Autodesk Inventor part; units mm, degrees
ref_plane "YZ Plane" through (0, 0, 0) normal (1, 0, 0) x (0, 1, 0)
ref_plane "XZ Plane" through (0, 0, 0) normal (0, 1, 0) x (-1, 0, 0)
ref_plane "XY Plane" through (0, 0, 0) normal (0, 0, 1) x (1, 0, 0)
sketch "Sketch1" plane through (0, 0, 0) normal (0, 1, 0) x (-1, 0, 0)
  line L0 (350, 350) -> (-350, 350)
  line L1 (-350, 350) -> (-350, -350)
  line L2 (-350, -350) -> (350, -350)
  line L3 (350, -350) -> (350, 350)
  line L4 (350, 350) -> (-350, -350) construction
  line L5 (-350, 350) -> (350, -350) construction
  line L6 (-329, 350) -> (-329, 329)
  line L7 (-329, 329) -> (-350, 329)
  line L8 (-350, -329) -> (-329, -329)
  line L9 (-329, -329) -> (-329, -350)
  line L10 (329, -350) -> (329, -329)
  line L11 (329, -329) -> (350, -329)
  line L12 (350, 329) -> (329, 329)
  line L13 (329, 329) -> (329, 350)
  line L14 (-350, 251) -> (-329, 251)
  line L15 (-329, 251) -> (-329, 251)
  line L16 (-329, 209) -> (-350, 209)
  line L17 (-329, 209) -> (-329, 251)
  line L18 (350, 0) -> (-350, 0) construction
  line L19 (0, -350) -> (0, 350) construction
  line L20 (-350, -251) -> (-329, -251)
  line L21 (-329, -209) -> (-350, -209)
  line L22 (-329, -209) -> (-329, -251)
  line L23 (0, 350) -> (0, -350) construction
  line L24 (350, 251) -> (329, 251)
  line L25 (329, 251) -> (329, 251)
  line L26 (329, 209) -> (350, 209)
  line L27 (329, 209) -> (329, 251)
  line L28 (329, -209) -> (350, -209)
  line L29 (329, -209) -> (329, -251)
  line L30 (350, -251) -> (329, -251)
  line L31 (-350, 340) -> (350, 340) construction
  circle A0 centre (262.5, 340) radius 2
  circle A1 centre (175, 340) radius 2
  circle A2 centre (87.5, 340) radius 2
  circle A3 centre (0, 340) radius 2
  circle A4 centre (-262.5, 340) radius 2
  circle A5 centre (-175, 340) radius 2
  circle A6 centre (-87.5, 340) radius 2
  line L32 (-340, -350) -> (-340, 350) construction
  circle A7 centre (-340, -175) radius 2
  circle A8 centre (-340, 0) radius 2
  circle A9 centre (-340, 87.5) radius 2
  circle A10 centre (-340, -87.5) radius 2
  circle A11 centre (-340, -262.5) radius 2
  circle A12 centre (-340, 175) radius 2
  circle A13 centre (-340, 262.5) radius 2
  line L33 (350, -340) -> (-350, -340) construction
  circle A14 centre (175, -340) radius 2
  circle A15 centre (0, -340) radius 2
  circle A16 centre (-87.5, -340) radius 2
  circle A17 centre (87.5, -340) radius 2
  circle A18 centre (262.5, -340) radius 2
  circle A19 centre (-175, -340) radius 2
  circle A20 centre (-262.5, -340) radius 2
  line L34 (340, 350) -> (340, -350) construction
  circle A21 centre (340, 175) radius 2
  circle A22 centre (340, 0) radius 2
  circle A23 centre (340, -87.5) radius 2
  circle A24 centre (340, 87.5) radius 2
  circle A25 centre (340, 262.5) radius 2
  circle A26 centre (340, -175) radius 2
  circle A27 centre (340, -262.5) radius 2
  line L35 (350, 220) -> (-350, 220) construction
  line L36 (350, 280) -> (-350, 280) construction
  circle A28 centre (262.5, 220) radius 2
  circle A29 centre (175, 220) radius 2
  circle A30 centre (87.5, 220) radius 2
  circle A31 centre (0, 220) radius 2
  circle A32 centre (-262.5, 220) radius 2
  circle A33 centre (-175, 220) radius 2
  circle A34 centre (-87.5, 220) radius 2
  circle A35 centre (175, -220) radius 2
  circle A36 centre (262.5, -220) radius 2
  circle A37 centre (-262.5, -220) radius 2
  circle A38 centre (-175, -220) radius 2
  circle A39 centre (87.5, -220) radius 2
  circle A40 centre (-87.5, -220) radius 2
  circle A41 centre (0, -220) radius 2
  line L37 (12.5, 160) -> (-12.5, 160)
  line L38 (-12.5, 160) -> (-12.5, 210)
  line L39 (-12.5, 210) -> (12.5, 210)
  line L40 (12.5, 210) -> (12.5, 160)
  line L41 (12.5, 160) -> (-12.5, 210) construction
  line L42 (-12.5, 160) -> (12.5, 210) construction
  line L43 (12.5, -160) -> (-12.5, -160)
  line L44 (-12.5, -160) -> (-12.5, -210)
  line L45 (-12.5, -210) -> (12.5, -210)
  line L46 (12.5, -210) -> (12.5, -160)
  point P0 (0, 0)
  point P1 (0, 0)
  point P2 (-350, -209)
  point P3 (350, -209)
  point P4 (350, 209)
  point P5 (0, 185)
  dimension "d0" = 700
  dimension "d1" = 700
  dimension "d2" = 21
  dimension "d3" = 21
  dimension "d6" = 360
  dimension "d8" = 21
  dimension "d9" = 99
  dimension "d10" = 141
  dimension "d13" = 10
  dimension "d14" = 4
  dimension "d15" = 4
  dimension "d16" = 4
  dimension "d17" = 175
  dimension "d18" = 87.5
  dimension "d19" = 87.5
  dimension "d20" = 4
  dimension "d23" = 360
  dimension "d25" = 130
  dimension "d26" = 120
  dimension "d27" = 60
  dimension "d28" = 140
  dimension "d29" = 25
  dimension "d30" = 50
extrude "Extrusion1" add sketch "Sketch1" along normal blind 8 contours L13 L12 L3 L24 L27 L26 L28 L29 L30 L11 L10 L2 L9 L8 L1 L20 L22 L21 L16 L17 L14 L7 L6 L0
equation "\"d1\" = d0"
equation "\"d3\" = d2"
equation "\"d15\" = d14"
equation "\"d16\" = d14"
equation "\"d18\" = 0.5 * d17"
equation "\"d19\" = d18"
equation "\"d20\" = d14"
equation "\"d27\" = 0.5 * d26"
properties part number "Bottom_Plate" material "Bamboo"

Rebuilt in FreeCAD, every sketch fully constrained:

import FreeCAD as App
import Part
import Sketcher


def add_polygon(sketch, points):
    """Adds a closed chain of lines whose ends are joined by coincident constraints."""
    first, n = sketch.GeometryCount, len(points)
    for a, b in zip(points, points[1:] + points[:1]):
        sketch.addGeometry(Part.LineSegment(App.Vector(*a, 0), App.Vector(*b, 0)), False)
    for i in range(n):
        sketch.addConstraint(Sketcher.Constraint("Coincident", first + i, 2, first + (i + 1) % n, 1))

doc = App.newDocument("Part")
body = doc.addObject("PartDesign::Body", "Body")

# Sketch on XZ plane
sketch1 = body.newObject("Sketcher::SketchObject", "Sketch")
sketch1.AttachmentSupport = (doc.getObject("XZ_Plane"), [""])
sketch1.MapMode = "FlatFace"
add_polygon(sketch1, [(-329, 329), (-329, 350), (329, 350), (329, 329), (350, 329), (350, 251), (329, 251), (329, 209), (350, 209), (350, -209), (329, -209), (329, -251), (350, -251), (350, -329), (329, -329), (329, -350), (-329, -350), (-329, -329), (-350, -329), (-350, -251), (-329, -251), (-329, -209), (-350, -209), (-350, 209), (-329, 209), (-329, 251), (-350, 251), (-350, 329)])  # lines 0-27
sketch1.addGeometry(Part.Circle(App.Vector(262.5, -340, 0), App.Vector(0, 0, 1), 2), False)  # 28
sketch1.addGeometry(Part.Circle(App.Vector(340, -262.5, 0), App.Vector(0, 0, 1), 2), False)  # 29
sketch1.addGeometry(Part.Circle(App.Vector(262.5, -220, 0), App.Vector(0, 0, 1), 2), False)  # 30
sketch1.addGeometry(Part.Circle(App.Vector(175, -340, 0), App.Vector(0, 0, 1), 2), False)  # 31
sketch1.addGeometry(Part.Circle(App.Vector(87.5, -340, 0), App.Vector(0, 0, 1), 2), False)  # 32
sketch1.addGeometry(Part.Circle(App.Vector(175, -220, 0), App.Vector(0, 0, 1), 2), False)  # 33
sketch1.addGeometry(Part.Circle(App.Vector(87.5, -220, 0), App.Vector(0, 0, 1), 2), False)  # 34
sketch1.addGeometry(Part.Circle(App.Vector(340, -175, 0), App.Vector(0, 0, 1), 2), False)  # 35
sketch1.addGeometry(Part.Circle(App.Vector(340, -87.5, 0), App.Vector(0, 0, 1), 2), False)  # 36
sketch1.addGeometry(Part.Circle(App.Vector(0, -340, 0), App.Vector(0, 0, 1), 2), False)  # 37
sketch1.addGeometry(Part.Circle(App.Vector(-87.5, -340, 0), App.Vector(0, 0, 1), 2), False)  # 38
sketch1.addGeometry(Part.Circle(App.Vector(0, -220, 0), App.Vector(0, 0, 1), 2), False)  # 39
add_polygon(sketch1, [(12.5, -160), (-12.5, -160), (-12.5, -210), (12.5, -210)])  # lines 40-43
sketch1.addGeometry(Part.Circle(App.Vector(-87.5, -220, 0), App.Vector(0, 0, 1), 2), False)  # 44
sketch1.addGeometry(Part.Circle(App.Vector(-175, -340, 0), App.Vector(0, 0, 1), 2), False)  # 45
sketch1.addGeometry(Part.Circle(App.Vector(-262.5, -340, 0), App.Vector(0, 0, 1), 2), False)  # 46
sketch1.addGeometry(Part.Circle(App.Vector(-175, -220, 0), App.Vector(0, 0, 1), 2), False)  # 47
sketch1.addGeometry(Part.Circle(App.Vector(-262.5, -220, 0), App.Vector(0, 0, 1), 2), False)  # 48
sketch1.addGeometry(Part.Circle(App.Vector(-340, -262.5, 0), App.Vector(0, 0, 1), 2), False)  # 49
sketch1.addGeometry(Part.Circle(App.Vector(-340, -175, 0), App.Vector(0, 0, 1), 2), False)  # 50
sketch1.addGeometry(Part.Circle(App.Vector(-340, -87.5, 0), App.Vector(0, 0, 1), 2), False)  # 51
sketch1.addGeometry(Part.Circle(App.Vector(340, 0, 0), App.Vector(0, 0, 1), 2), False)  # 52
sketch1.addGeometry(Part.Circle(App.Vector(340, 87.5, 0), App.Vector(0, 0, 1), 2), False)  # 53
sketch1.addGeometry(Part.Circle(App.Vector(340, 175, 0), App.Vector(0, 0, 1), 2), False)  # 54
sketch1.addGeometry(Part.Circle(App.Vector(262.5, 220, 0), App.Vector(0, 0, 1), 2), False)  # 55
sketch1.addGeometry(Part.Circle(App.Vector(340, 262.5, 0), App.Vector(0, 0, 1), 2), False)  # 56
sketch1.addGeometry(Part.Circle(App.Vector(262.5, 340, 0), App.Vector(0, 0, 1), 2), False)  # 57
sketch1.addGeometry(Part.Circle(App.Vector(175, 220, 0), App.Vector(0, 0, 1), 2), False)  # 58
sketch1.addGeometry(Part.Circle(App.Vector(87.5, 220, 0), App.Vector(0, 0, 1), 2), False)  # 59
sketch1.addGeometry(Part.Circle(App.Vector(175, 340, 0), App.Vector(0, 0, 1), 2), False)  # 60
sketch1.addGeometry(Part.Circle(App.Vector(87.5, 340, 0), App.Vector(0, 0, 1), 2), False)  # 61
sketch1.addGeometry(Part.Circle(App.Vector(-340, 0, 0), App.Vector(0, 0, 1), 2), False)  # 62
sketch1.addGeometry(Part.Circle(App.Vector(-340, 87.5, 0), App.Vector(0, 0, 1), 2), False)  # 63
add_polygon(sketch1, [(-12.5, 210), (-12.5, 160), (12.5, 160), (12.5, 210)])  # lines 64-67
sketch1.addGeometry(Part.Circle(App.Vector(0, 220, 0), App.Vector(0, 0, 1), 2), False)  # 68
sketch1.addGeometry(Part.Circle(App.Vector(-87.5, 220, 0), App.Vector(0, 0, 1), 2), False)  # 69
sketch1.addGeometry(Part.Circle(App.Vector(0, 340, 0), App.Vector(0, 0, 1), 2), False)  # 70
sketch1.addGeometry(Part.Circle(App.Vector(-87.5, 340, 0), App.Vector(0, 0, 1), 2), False)  # 71
sketch1.addGeometry(Part.Circle(App.Vector(-175, 220, 0), App.Vector(0, 0, 1), 2), False)  # 72
sketch1.addGeometry(Part.Circle(App.Vector(-340, 175, 0), App.Vector(0, 0, 1), 2), False)  # 73
sketch1.addGeometry(Part.Circle(App.Vector(-262.5, 220, 0), App.Vector(0, 0, 1), 2), False)  # 74
sketch1.addGeometry(Part.Circle(App.Vector(-175, 340, 0), App.Vector(0, 0, 1), 2), False)  # 75
sketch1.addGeometry(Part.Circle(App.Vector(-340, 262.5, 0), App.Vector(0, 0, 1), 2), False)  # 76
sketch1.addGeometry(Part.Circle(App.Vector(-262.5, 340, 0), App.Vector(0, 0, 1), 2), False)  # 77
sketch1.addConstraint([
    Sketcher.Constraint("Vertical", 0),
    Sketcher.Constraint("Horizontal", 1),
    Sketcher.Constraint("Vertical", 2),
    Sketcher.Constraint("Horizontal", 3),
    Sketcher.Constraint("Vertical", 4),
    Sketcher.Constraint("Horizontal", 5),
    Sketcher.Constraint("Vertical", 6),
    Sketcher.Constraint("Horizontal", 7),
    Sketcher.Constraint("Vertical", 8),
    Sketcher.Constraint("Horizontal", 9),
    Sketcher.Constraint("Vertical", 10),
    Sketcher.Constraint("Horizontal", 11),
    Sketcher.Constraint("Vertical", 12),
    Sketcher.Constraint("Horizontal", 13),
    Sketcher.Constraint("Vertical", 14),
    Sketcher.Constraint("Horizontal", 15),
    Sketcher.Constraint("Vertical", 16),
    Sketcher.Constraint("Horizontal", 17),
    Sketcher.Constraint("Vertical", 18),
    Sketcher.Constraint("Horizontal", 19),
    Sketcher.Constraint("Vertical", 20),
    Sketcher.Constraint("Horizontal", 21),
    Sketcher.Constraint("Vertical", 22),
    Sketcher.Constraint("Horizontal", 23),
    Sketcher.Constraint("Vertical", 24),
    Sketcher.Constraint("Horizontal", 25),
    Sketcher.Constraint("Vertical", 26),
    Sketcher.Constraint("Horizontal", 27),
    Sketcher.Constraint("Horizontal", 40),
    Sketcher.Constraint("Vertical", 41),
    Sketcher.Constraint("Horizontal", 42),
    Sketcher.Constraint("Vertical", 43),
    Sketcher.Constraint("Vertical", 64),
    Sketcher.Constraint("Horizontal", 65),
    Sketcher.Constraint("Vertical", 66),
    Sketcher.Constraint("Horizontal", 67),
    Sketcher.Constraint("Equal", 28, 29),
    Sketcher.Constraint("Equal", 29, 30),
    Sketcher.Constraint("Equal", 30, 31),
    Sketcher.Constraint("Equal", 31, 32),
    Sketcher.Constraint("Equal", 32, 33),
    Sketcher.Constraint("Equal", 33, 34),
    Sketcher.Constraint("Equal", 34, 35),
    Sketcher.Constraint("Equal", 35, 36),
    Sketcher.Constraint("Equal", 36, 37),
    Sketcher.Constraint("Equal", 37, 38),
    Sketcher.Constraint("Equal", 38, 39),
    Sketcher.Constraint("Equal", 39, 44),
    Sketcher.Constraint("Equal", 44, 45),
    Sketcher.Constraint("Equal", 45, 46),
    Sketcher.Constraint("Equal", 46, 47),
    Sketcher.Constraint("Equal", 47, 48),
    Sketcher.Constraint("Equal", 48, 49),
    Sketcher.Constraint("Equal", 49, 50),
    Sketcher.Constraint("Equal", 50, 51),
    Sketcher.Constraint("Equal", 51, 52),
    Sketcher.Constraint("Equal", 52, 53),
    Sketcher.Constraint("Equal", 53, 54),
    Sketcher.Constraint("Equal", 54, 55),
    Sketcher.Constraint("Equal", 55, 56),
    Sketcher.Constraint("Equal", 56, 57),
    Sketcher.Constraint("Equal", 57, 58),
    Sketcher.Constraint("Equal", 58, 59),
    Sketcher.Constraint("Equal", 59, 60),
    Sketcher.Constraint("Equal", 60, 61),
    Sketcher.Constraint("Equal", 61, 62),
    Sketcher.Constraint("Equal", 62, 63),
    Sketcher.Constraint("Equal", 63, 68),
    Sketcher.Constraint("Equal", 68, 69),
    Sketcher.Constraint("Equal", 69, 70),
    Sketcher.Constraint("Equal", 70, 71),
    Sketcher.Constraint("Equal", 71, 72),
    Sketcher.Constraint("Equal", 72, 73),
    Sketcher.Constraint("Equal", 73, 74),
    Sketcher.Constraint("Equal", 74, 75),
    Sketcher.Constraint("Equal", 75, 76),
    Sketcher.Constraint("Equal", 76, 77),
    Sketcher.Constraint("Symmetric", 51, 3, 53, 3, -1, 1),
    Sketcher.Constraint("Symmetric", 50, 3, 54, 3, -1, 1),
    Sketcher.Constraint("Symmetric", 48, 3, 55, 3, -1, 1),
    Sketcher.Constraint("Symmetric", 49, 3, 56, 3, -1, 1),
    Sketcher.Constraint("Symmetric", 46, 3, 57, 3, -1, 1),
    Sketcher.Constraint("Symmetric", 47, 3, 58, 3, -1, 1),
    Sketcher.Constraint("Symmetric", 44, 3, 59, 3, -1, 1),
    Sketcher.Constraint("Symmetric", 45, 3, 60, 3, -1, 1),
    Sketcher.Constraint("Symmetric", 38, 3, 61, 3, -1, 1),
    Sketcher.Constraint("Symmetric", 52, 3, 62, 3, -1, 1),
    Sketcher.Constraint("Symmetric", 36, 3, 63, 3, -1, 1),
    Sketcher.Constraint("Symmetric", 39, 3, 68, 3, -1, 1),
    Sketcher.Constraint("Symmetric", 34, 3, 69, 3, -1, 1),
    Sketcher.Constraint("Symmetric", 37, 3, 70, 3, -1, 1),
    Sketcher.Constraint("Symmetric", 32, 3, 71, 3, -1, 1),
    Sketcher.Constraint("Symmetric", 33, 3, 72, 3, -1, 1),
    Sketcher.Constraint("Symmetric", 35, 3, 73, 3, -1, 1),
    Sketcher.Constraint("Symmetric", 30, 3, 74, 3, -1, 1),
    Sketcher.Constraint("Symmetric", 31, 3, 75, 3, -1, 1),
    Sketcher.Constraint("Symmetric", 29, 3, 76, 3, -1, 1),
    Sketcher.Constraint("Symmetric", 28, 3, 77, 3, -1, 1),
    Sketcher.Constraint("Symmetric", 0, 2, 14, 2, -1, 1),
    Sketcher.Constraint("Symmetric", 2, 2, 16, 2, -1, 1),
    Sketcher.Constraint("Symmetric", 4, 2, 18, 2, -1, 1),
    Sketcher.Constraint("Symmetric", 6, 2, 20, 2, -1, 1),
    Sketcher.Constraint("Symmetric", 8, 2, 22, 2, -1, 1),
    Sketcher.Constraint("Symmetric", 10, 2, 24, 2, -1, 1),
    Sketcher.Constraint("Symmetric", 12, 2, 26, 2, -1, 1),
    Sketcher.Constraint("Symmetric", 43, 2, 64, 2, -1, 1),
    Sketcher.Constraint("Symmetric", 41, 2, 66, 2, -1, 1),
    Sketcher.Constraint("Symmetric", 32, 3, 38, 3, -2),
    Sketcher.Constraint("Symmetric", 34, 3, 44, 3, -2),
    Sketcher.Constraint("Symmetric", 31, 3, 45, 3, -2),
    Sketcher.Constraint("Symmetric", 28, 3, 46, 3, -2),
    Sketcher.Constraint("Symmetric", 33, 3, 47, 3, -2),
    Sketcher.Constraint("Symmetric", 30, 3, 48, 3, -2),
    Sketcher.Constraint("Symmetric", 29, 3, 49, 3, -2),
    Sketcher.Constraint("Symmetric", 35, 3, 50, 3, -2),
    Sketcher.Constraint("Symmetric", 36, 3, 51, 3, -2),
    Sketcher.Constraint("Symmetric", 13, 2, 16, 2, -2),
    Sketcher.Constraint("Symmetric", 11, 2, 18, 2, -2),
    Sketcher.Constraint("Symmetric", 9, 2, 20, 2, -2),
    Sketcher.Constraint("PointOnObject", 37, 3, -2),
    Sketcher.Constraint("PointOnObject", 39, 3, -2),
    Sketcher.Constraint("PointOnObject", 52, 3, -1),
    Sketcher.Constraint("Horizontal", 28, 3, 31, 3),
    Sketcher.Constraint("Horizontal", 31, 3, 32, 3),
    Sketcher.Constraint("Horizontal", 30, 3, 33, 3),
    Sketcher.Constraint("Horizontal", 33, 3, 34, 3),
    Sketcher.Constraint("Horizontal", 32, 3, 37, 3),
    Sketcher.Constraint("Horizontal", 34, 3, 39, 3),
    Sketcher.Constraint("Vertical", 28, 3, 30, 3),
    Sketcher.Constraint("Vertical", 31, 3, 33, 3),
    Sketcher.Constraint("Vertical", 32, 3, 34, 3),
    Sketcher.Constraint("Vertical", 29, 3, 35, 3),
    Sketcher.Constraint("Vertical", 35, 3, 36, 3),
    Sketcher.Constraint("Vertical", 36, 3, 52, 3),
    Sketcher.Constraint("Vertical", 2, 2, 5, 2),
    Sketcher.Constraint("Vertical", 4, 2, 7, 2),
    Sketcher.Constraint("Vertical", 41, 2, 64, 2),
    Sketcher.Constraint("Equal", 27, 0),
    Sketcher.Constraint("Diameter", 28, 4.0),
    Sketcher.Constraint("DistanceX", 3, 1, 3, 2, 21.0),
    Sketcher.Constraint("DistanceX", 40, 2, 40, 1, 25.0),
    Sketcher.Constraint("DistanceY", 41, 2, 41, 1, 50.0),
    Sketcher.Constraint("DistanceX", -1, 1, 31, 3, 175.0),
    Sketcher.Constraint("DistanceY", 35, 3, -1, 1, 175.0),
    Sketcher.Constraint("DistanceX", -1, 1, 32, 3, 87.5),
    Sketcher.Constraint("DistanceY", 36, 3, -1, 1, 87.5),
    Sketcher.Constraint("DistanceX", 1, 1, 1, 2, 658.0),
    Sketcher.Constraint("DistanceY", 4, 2, 4, 1, 78.0),
    Sketcher.Constraint("DistanceY", 6, 2, 6, 1, 42.0),
    Sketcher.Constraint("DistanceY", 8, 2, 8, 1, 418.0),
    Sketcher.Constraint("DistanceY", 28, 3, -1, 1, 340.0),
    Sketcher.Constraint("DistanceX", -1, 1, 29, 3, 340.0),
    Sketcher.Constraint("DistanceY", 30, 3, -1, 1, 220.0),
    Sketcher.Constraint("DistanceY", 40, 2, -1, 1, 160.0),
    Sketcher.Constraint("DistanceX", -1, 1, 28, 3, 262.5),
    Sketcher.Constraint("DistanceY", 29, 3, -1, 1, 262.5),
])
pad1 = body.newObject("PartDesign::Pad", "Pad")
pad1.Profile = sketch1
pad1.Length = 8
pad1.Reversed = True

doc.recompute()
